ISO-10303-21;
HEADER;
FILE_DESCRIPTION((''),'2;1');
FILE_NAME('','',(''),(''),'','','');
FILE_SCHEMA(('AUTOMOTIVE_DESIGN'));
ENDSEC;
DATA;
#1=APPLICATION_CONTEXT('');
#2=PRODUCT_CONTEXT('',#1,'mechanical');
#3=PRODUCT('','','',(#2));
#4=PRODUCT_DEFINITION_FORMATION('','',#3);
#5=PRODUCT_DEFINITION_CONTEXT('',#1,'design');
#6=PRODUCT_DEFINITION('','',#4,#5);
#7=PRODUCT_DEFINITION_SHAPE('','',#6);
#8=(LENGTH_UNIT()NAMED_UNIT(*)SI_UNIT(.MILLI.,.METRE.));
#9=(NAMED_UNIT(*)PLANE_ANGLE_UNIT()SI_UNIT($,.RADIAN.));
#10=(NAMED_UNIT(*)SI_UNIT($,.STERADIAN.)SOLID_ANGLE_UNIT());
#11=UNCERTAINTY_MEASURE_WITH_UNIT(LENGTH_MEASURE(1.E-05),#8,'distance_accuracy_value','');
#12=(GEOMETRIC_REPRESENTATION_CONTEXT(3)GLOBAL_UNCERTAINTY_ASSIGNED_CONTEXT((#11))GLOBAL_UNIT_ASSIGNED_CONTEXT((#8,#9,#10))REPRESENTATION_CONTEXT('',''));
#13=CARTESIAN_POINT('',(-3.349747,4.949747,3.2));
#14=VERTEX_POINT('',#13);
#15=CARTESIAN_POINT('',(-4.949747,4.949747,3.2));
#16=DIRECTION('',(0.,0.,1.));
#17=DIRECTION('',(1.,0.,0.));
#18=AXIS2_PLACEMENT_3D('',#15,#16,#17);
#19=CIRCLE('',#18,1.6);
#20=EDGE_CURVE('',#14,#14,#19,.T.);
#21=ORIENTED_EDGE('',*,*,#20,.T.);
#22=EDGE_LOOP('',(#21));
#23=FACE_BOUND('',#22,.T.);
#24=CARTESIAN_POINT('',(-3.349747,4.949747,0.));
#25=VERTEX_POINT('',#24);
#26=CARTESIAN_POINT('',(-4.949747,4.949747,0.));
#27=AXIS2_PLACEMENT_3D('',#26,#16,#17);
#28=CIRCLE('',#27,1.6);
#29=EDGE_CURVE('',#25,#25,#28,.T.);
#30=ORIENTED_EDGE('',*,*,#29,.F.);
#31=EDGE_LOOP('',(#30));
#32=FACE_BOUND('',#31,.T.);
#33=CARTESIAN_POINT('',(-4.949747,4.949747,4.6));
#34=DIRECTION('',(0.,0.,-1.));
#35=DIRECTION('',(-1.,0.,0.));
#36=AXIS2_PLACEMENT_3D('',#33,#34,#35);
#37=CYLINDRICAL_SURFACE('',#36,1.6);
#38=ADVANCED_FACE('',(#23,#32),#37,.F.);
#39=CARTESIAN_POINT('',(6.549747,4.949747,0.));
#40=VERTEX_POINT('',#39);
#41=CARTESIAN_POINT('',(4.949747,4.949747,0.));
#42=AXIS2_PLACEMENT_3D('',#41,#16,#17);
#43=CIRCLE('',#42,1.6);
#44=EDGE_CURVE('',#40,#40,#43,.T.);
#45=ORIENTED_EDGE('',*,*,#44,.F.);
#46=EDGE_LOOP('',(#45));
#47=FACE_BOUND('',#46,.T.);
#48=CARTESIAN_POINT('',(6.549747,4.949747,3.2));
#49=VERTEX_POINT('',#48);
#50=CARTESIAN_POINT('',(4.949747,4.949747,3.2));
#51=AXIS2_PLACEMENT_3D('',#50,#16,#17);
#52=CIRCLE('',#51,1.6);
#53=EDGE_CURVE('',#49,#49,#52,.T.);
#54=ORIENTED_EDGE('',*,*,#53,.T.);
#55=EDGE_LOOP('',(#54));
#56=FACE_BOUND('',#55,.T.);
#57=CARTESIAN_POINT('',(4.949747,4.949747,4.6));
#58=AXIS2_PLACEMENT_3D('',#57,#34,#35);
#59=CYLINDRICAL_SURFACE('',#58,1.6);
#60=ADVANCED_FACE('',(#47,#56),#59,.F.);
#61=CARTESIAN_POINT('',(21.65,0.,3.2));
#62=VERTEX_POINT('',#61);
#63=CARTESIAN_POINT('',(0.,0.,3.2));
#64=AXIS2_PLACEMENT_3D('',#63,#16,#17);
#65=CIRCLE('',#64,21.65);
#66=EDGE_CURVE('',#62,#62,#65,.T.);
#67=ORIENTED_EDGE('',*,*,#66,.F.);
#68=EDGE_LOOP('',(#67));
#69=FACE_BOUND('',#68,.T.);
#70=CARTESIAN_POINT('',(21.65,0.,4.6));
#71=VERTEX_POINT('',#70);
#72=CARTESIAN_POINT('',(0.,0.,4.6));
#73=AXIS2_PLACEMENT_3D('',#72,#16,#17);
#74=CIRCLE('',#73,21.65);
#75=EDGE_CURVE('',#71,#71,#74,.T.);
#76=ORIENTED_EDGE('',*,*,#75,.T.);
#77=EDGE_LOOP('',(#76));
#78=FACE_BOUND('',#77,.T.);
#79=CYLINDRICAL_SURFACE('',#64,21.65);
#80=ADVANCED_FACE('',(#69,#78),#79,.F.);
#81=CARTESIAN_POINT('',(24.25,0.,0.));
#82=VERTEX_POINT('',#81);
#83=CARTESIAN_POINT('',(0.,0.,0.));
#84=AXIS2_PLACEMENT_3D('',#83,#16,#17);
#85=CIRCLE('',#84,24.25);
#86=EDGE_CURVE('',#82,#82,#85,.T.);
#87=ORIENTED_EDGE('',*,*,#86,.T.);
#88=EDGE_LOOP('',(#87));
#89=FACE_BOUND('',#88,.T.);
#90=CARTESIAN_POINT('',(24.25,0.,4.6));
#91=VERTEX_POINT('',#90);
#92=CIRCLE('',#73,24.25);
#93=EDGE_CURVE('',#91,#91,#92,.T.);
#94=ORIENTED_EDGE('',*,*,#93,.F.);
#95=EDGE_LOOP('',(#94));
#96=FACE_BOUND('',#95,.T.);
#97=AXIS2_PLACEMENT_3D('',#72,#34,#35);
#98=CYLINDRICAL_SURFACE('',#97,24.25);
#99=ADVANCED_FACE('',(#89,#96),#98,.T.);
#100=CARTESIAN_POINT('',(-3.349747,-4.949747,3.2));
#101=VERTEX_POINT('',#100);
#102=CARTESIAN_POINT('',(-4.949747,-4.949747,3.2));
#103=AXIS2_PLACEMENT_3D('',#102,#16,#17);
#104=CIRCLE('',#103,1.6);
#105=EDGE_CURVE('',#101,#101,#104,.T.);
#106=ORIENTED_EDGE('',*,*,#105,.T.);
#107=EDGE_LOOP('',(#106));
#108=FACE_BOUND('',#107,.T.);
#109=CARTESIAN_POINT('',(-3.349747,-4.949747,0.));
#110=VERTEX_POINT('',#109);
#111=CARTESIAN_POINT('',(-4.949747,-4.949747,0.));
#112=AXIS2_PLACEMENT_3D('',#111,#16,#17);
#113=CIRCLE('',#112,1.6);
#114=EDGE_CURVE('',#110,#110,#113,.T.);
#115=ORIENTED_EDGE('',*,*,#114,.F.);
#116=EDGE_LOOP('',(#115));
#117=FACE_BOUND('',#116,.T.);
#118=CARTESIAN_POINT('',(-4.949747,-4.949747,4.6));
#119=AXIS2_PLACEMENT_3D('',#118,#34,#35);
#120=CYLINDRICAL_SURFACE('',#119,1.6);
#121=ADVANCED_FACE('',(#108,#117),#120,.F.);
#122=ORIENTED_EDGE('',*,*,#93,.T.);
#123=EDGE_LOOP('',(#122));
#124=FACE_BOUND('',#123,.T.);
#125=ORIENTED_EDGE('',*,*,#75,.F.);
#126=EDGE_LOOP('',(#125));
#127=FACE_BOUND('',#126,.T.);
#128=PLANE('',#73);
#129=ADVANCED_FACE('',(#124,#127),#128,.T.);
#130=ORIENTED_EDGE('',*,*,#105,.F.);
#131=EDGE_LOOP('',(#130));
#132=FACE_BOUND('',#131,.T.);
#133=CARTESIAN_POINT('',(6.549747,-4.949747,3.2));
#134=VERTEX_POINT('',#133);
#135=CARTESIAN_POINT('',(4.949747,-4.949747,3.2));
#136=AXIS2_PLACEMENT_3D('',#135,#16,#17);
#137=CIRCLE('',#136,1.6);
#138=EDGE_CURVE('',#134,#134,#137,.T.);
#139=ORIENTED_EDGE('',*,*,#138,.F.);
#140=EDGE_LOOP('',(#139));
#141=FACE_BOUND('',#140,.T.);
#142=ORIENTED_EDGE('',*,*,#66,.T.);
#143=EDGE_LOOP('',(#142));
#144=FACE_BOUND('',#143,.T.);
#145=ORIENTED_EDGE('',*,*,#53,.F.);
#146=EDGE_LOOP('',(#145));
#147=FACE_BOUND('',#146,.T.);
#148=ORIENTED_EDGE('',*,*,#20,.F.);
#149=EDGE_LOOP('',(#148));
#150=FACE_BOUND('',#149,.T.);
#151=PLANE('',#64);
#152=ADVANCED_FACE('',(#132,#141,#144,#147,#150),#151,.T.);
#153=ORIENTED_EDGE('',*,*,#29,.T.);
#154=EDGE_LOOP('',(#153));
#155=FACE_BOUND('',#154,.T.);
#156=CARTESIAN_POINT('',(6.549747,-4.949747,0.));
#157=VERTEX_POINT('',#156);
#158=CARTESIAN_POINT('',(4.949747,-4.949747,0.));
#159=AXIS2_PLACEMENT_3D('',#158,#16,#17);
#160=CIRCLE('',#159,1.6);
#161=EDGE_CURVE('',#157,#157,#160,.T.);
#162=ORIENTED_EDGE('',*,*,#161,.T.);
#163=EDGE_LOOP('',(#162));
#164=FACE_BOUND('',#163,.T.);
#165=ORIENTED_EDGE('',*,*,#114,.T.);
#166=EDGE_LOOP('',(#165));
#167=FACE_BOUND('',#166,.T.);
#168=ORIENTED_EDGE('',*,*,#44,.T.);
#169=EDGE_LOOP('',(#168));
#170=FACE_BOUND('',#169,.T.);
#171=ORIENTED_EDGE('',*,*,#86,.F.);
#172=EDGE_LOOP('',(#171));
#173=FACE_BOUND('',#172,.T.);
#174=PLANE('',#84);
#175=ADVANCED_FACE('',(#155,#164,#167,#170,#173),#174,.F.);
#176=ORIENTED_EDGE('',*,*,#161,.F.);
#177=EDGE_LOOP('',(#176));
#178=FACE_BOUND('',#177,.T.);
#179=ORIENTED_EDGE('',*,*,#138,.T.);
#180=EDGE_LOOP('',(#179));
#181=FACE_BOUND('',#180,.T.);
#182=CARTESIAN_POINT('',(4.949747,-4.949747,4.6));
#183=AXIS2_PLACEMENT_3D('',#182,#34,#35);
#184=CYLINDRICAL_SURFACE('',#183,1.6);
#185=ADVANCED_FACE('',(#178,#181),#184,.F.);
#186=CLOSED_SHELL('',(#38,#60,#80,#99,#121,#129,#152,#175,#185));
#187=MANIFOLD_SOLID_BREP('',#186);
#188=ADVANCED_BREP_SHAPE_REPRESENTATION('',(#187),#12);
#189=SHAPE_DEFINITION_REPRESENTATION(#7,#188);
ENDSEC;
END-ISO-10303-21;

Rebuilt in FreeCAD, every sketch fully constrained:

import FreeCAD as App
import Part
import Sketcher

V = App.Vector

doc = App.newDocument("Part")
body = doc.addObject("PartDesign::Body", "Body")

# Sketch on XY plane
sketch1 = doc.addObject("Sketcher::SketchObject", "Sketch")
body.addObject(sketch1)
sketch1.AttachmentSupport = (doc.XY_Plane, [""])
sketch1.MapMode = "FlatFace"
sketch1.addGeometry(Part.Circle(V(0, 0, 0), V(0, 0, 1), 24.2), False)
sketch1.addGeometry(Part.Circle(V(-4.9, -4.9, 0), V(0, 0, 1), 1.6), False)
sketch1.addGeometry(Part.Circle(V(4.9, -4.9, 0), V(0, 0, 1), 1.6), False)
sketch1.addGeometry(Part.Circle(V(-4.9, 4.9, 0), V(0, 0, 1), 1.6), False)
sketch1.addGeometry(Part.Circle(V(4.9, 4.9, 0), V(0, 0, 1), 1.6), False)
sketch1.addConstraint(Sketcher.Constraint("Coincident", 0, 3, -1, 1))
sketch1.addConstraint(Sketcher.Constraint("Equal", 1, 2))
sketch1.addConstraint(Sketcher.Constraint("Equal", 2, 3))
sketch1.addConstraint(Sketcher.Constraint("Equal", 3, 4))
sketch1.addConstraint(Sketcher.Constraint("Symmetric", 2, 3, 3, 3, -1, 1))
sketch1.addConstraint(Sketcher.Constraint("Symmetric", 1, 3, 4, 3, -1, 1))
sketch1.addConstraint(Sketcher.Constraint("Symmetric", 1, 3, 2, 3, -2))
sketch1.addConstraint(Sketcher.Constraint("Diameter", 0, 48.5))
sketch1.addConstraint(Sketcher.Constraint("Diameter", 1, 3.2))
sketch1.addConstraint(Sketcher.Constraint("DistanceX", 1, 3, -1, 1, 4.949747))
sketch1.addConstraint(Sketcher.Constraint("DistanceY", 1, 3, -1, 1, 4.949747))
pad1 = doc.addObject("PartDesign::Pad", "Pad")
body.addObject(pad1)
pad1.Profile = sketch1
pad1.Length = 4.6

# Sketch on XY plane
sketch2 = doc.addObject("Sketcher::SketchObject", "Sketch001")
body.addObject(sketch2)
sketch2.AttachmentSupport = (doc.XY_Plane, [""])
sketch2.MapMode = "FlatFace"
sketch2.AttachmentOffset = App.Placement(V(0, 0, 4.6), App.Rotation())
sketch2.addGeometry(Part.Circle(V(0, 0, 0), V(0, 0, 1), 22), False)
sketch2.addConstraint(Sketcher.Constraint("Coincident", 0, 3, -1, 1))
sketch2.addConstraint(Sketcher.Constraint("Diameter", 0, 43.3))
pocket1 = doc.addObject("PartDesign::Pocket", "Pocket")
body.addObject(pocket1)
pocket1.Profile = sketch2
pocket1.Length = 1.4

doc.recompute()
